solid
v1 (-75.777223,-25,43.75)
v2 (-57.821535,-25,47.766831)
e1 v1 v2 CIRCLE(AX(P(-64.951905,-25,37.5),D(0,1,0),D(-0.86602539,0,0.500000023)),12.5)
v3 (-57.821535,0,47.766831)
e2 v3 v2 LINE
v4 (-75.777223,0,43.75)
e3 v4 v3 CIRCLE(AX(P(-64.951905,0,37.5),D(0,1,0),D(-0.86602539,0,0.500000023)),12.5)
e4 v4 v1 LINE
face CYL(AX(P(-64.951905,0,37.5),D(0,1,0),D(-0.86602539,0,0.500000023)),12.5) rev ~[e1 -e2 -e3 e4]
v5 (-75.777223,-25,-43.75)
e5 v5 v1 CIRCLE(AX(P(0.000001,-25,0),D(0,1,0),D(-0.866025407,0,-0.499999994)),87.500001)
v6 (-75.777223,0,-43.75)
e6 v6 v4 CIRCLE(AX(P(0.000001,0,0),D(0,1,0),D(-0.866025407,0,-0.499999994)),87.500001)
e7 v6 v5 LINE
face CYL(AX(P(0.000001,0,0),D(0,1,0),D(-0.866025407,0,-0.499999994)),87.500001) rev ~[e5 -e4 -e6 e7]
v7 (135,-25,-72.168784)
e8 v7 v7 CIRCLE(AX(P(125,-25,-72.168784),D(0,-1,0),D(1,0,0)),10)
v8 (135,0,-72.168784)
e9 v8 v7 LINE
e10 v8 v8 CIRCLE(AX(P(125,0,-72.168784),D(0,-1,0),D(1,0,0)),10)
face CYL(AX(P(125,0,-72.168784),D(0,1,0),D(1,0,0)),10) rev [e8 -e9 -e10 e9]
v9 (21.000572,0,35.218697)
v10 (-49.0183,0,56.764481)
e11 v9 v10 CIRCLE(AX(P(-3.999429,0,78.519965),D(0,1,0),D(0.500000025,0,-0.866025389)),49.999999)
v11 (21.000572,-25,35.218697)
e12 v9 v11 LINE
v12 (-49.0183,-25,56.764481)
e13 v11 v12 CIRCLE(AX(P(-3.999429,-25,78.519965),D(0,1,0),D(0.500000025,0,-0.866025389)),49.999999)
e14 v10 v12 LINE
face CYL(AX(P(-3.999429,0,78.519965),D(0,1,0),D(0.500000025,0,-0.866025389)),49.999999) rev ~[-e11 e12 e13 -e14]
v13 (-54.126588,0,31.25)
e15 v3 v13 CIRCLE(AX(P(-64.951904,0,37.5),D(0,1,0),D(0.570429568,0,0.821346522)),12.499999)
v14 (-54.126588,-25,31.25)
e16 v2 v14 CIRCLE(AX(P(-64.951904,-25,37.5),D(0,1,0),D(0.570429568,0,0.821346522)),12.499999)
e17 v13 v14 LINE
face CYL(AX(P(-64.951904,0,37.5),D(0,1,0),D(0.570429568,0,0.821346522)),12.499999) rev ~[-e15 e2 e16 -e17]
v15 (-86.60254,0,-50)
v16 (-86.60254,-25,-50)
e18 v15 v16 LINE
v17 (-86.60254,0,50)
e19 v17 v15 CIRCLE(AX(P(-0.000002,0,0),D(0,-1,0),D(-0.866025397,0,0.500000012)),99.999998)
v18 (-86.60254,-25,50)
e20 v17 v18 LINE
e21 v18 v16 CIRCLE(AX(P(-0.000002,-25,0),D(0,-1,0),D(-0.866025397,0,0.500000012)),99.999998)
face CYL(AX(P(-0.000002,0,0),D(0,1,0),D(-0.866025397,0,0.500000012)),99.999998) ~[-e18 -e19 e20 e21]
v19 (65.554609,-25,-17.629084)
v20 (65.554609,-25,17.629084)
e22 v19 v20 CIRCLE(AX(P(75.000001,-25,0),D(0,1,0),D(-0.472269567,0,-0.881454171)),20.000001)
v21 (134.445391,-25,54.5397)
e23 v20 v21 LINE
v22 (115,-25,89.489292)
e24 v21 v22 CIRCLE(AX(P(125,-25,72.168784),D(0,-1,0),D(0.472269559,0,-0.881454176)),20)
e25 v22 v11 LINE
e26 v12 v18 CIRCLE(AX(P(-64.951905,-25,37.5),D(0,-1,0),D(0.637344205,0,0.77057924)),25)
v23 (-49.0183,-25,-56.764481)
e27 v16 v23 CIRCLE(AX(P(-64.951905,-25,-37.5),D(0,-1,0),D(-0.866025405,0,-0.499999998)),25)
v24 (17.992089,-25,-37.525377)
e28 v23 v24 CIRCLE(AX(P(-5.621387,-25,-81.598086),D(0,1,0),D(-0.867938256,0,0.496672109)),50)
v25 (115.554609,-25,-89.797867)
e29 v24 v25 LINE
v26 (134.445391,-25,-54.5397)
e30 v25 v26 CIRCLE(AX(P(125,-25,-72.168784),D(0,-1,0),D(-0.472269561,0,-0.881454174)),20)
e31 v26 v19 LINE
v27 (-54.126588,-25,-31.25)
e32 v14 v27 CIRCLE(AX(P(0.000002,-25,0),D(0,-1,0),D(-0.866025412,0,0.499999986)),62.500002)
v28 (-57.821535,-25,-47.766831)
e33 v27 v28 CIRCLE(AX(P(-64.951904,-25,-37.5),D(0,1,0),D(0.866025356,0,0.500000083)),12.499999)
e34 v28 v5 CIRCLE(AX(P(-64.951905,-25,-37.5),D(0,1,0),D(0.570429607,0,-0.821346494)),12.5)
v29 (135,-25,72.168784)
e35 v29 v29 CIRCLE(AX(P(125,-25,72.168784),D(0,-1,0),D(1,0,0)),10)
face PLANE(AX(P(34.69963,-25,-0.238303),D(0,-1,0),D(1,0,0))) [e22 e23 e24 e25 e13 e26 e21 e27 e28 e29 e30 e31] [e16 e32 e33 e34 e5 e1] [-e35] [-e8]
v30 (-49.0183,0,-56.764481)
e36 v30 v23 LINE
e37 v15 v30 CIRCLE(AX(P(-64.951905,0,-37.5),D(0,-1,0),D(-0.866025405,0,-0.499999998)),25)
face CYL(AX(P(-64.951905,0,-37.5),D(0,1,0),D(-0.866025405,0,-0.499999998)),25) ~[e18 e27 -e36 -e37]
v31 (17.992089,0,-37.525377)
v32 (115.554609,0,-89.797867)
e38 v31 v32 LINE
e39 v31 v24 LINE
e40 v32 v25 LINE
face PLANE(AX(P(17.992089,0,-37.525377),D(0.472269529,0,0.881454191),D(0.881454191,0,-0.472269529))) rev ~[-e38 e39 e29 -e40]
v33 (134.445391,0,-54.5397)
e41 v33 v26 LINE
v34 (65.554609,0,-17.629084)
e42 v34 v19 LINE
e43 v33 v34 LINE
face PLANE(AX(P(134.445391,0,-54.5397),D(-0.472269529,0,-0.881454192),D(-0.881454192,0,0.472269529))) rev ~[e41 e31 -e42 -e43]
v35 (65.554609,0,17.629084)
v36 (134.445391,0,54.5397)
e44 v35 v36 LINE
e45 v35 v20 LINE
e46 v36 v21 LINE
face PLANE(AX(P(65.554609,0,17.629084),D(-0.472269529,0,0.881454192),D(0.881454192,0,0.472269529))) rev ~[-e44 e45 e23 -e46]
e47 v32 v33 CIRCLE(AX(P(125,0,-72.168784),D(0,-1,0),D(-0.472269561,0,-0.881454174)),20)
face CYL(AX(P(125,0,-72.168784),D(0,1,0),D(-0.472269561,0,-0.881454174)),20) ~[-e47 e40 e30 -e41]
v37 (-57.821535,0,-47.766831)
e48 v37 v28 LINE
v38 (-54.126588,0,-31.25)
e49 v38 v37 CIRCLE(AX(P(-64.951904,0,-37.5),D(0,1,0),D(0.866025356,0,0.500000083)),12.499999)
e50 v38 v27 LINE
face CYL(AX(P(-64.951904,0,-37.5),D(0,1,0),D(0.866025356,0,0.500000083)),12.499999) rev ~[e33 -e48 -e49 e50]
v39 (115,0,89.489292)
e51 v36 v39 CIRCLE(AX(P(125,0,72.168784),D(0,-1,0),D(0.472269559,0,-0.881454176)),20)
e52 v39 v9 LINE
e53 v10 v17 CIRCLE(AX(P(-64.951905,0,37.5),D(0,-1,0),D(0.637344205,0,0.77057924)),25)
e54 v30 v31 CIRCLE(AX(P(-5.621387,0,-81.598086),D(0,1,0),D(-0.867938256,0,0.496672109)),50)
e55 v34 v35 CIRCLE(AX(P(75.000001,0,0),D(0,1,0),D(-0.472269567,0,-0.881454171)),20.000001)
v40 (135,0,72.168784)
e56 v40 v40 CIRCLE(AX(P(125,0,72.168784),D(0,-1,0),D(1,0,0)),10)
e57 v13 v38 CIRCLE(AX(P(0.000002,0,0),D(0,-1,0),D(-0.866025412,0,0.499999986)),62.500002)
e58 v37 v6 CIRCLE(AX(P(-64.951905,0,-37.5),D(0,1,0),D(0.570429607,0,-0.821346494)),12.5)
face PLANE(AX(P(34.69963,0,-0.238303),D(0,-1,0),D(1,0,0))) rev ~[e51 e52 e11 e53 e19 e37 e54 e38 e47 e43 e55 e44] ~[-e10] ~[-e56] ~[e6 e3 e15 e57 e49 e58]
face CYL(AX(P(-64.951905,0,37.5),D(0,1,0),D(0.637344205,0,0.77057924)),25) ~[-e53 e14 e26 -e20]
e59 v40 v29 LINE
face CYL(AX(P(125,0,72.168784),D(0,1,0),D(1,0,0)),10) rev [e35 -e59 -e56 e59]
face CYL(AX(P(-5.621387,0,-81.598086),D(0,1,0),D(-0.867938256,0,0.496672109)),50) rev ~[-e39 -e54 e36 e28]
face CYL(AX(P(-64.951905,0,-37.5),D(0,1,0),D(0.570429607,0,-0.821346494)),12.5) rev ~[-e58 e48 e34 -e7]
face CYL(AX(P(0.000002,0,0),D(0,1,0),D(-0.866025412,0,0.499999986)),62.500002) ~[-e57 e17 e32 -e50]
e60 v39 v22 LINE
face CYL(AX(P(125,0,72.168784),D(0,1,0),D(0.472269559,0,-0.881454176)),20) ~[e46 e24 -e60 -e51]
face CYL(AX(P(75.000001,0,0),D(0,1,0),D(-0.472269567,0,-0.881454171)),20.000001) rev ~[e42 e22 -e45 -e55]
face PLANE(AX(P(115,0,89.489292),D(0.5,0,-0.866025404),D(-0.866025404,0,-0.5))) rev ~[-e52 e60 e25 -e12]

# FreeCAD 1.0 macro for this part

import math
import FreeCAD as App
import Part
import Sketcher

V = App.Vector
Q = App.Units.Quantity

doc = App.newDocument("Part")
params = doc.addObject("Spreadsheet::Sheet", "Params")
for row, (alias, value) in enumerate([
    ("sketch1_diameter", "20 mm"),
    ("sketch1_radius", "20 mm"),
    ("sketch1_radius2", "49.999999 mm"),
    ("sketch1_radius3", "25 mm"),
    ("sketch1_radius4", "87.500001 mm"),
    ("pad1_length", "25 mm"),
], start=1):
    params.set(f"A{row}", alias)
    params.set(f"B{row}", "=" + value)
    params.setAlias(f"B{row}", alias)

body = doc.addObject("PartDesign::Body", "Body")

sketch1 = body.newObject("Sketcher::SketchObject", "Sketch")
sketch1.AttachmentSupport = (doc.getObject("XZ_Plane"), [""])
sketch1.MapMode = "FlatFace"
sketch1.addGeometry([
    Part.LineSegment(V(66, 18, 0), V(134, 55, 0)),
    Part.ArcOfCircle(Part.Circle(V(125, 72, 0), V(0, 0, 1), 20), math.radians(-62), math.radians(120)),
    Part.LineSegment(V(115, 89, 0), V(21, 35, 0)),
    Part.ArcOfCircle(Part.Circle(V(-4, 79, 0), V(0, 0, 1), 50), math.radians(-154), math.radians(-60)),
    Part.ArcOfCircle(Part.Circle(V(-65, 38, 0), V(0, 0, 1), 25), math.radians(50), math.radians(150)),
    Part.ArcOfCircle(Part.Circle(V(0, 0, 0), V(0, 0, 1), 100), math.radians(150), math.radians(210)),
    Part.ArcOfCircle(Part.Circle(V(-65, -38, 0), V(0, 0, 1), 25), math.radians(-150), math.radians(-50)),
    Part.ArcOfCircle(Part.Circle(V(-6, -82, 0), V(0, 0, 1), 50), math.radians(62), math.radians(150)),
    Part.LineSegment(V(18, -38, 0), V(116, -90, 0)),
    Part.ArcOfCircle(Part.Circle(V(125, -72, 0), V(0, 0, 1), 20), math.radians(-118), math.radians(62)),
    Part.LineSegment(V(134, -55, 0), V(66, -18, 0)),
    Part.ArcOfCircle(Part.Circle(V(75, 0, 0), V(0, 0, 1), 20), math.radians(118), math.radians(242)),
    Part.Circle(V(125, -72, 0), V(0, 0, 1), 10),
    Part.ArcOfCircle(Part.Circle(V(0, 0, 0), V(0, 0, 1), 88), math.radians(150), math.radians(210)),
    Part.ArcOfCircle(Part.Circle(V(-65, 37, 0), V(0, 0, 1), 13), math.radians(55), math.radians(150)),
    Part.ArcOfCircle(Part.Circle(V(-65, 38, 0), V(0, 0, 1), 12), math.radians(-30), math.radians(55)),
    Part.ArcOfCircle(Part.Circle(V(0, 0, 0), V(0, 0, 1), 63), math.radians(150), math.radians(210)),
    Part.ArcOfCircle(Part.Circle(V(-65, -38, 0), V(0, 0, 1), 12), math.radians(-55), math.radians(30)),
    Part.ArcOfCircle(Part.Circle(V(-65, -37, 0), V(0, 0, 1), 13), math.radians(-150), math.radians(-55)),
    Part.Circle(V(125, 72, 0), V(0, 0, 1), 10),
], False)
sketch1.addConstraint([
    Sketcher.Constraint("Tangent", 0, 2, 1, 1),
    Sketcher.Constraint("Tangent", 1, 2, 2, 1),
    Sketcher.Constraint("Tangent", 2, 2, 3, 2),
    Sketcher.Constraint("Coincident", 3, 1, 4, 1),
    Sketcher.Constraint("Tangent", 4, 2, 5, 1),
    Sketcher.Constraint("Tangent", 5, 2, 6, 1),
    Sketcher.Constraint("Coincident", 6, 2, 7, 2),
    Sketcher.Constraint("Tangent", 7, 1, 8, 1),
    Sketcher.Constraint("Tangent", 8, 2, 9, 1),
    Sketcher.Constraint("Tangent", 9, 2, 10, 1),
    Sketcher.Constraint("Tangent", 10, 2, 11, 2),
    Sketcher.Constraint("Tangent", 11, 1, 0, 1),
    Sketcher.Constraint("Tangent", 13, 1, 14, 2),
    Sketcher.Constraint("Tangent", 14, 1, 15, 2),
    Sketcher.Constraint("Tangent", 15, 1, 16, 1),
    Sketcher.Constraint("Tangent", 16, 2, 17, 2),
    Sketcher.Constraint("Tangent", 17, 1, 18, 2),
    Sketcher.Constraint("Tangent", 18, 1, 13, 2),
    Sketcher.Constraint("Coincident", 5, 3, -1, 1),
    Sketcher.Constraint("Coincident", 13, 3, -1, 1),
    Sketcher.Constraint("Coincident", 16, 3, -1, 1),
    Sketcher.Constraint("Coincident", 12, 3, 9, 3),
    Sketcher.Constraint("Coincident", 14, 3, 4, 3),
    Sketcher.Constraint("Coincident", 17, 3, 6, 3),
    Sketcher.Constraint("Coincident", 19, 3, 1, 3),
    Sketcher.Constraint("Equal", 4, 6),
    Sketcher.Constraint("Equal", 3, 7),
    Sketcher.Constraint("Equal", 1, 9),
    Sketcher.Constraint("Equal", 9, 11),
    Sketcher.Constraint("Equal", 14, 15),
    Sketcher.Constraint("Equal", 12, 19),
    Sketcher.Constraint("Symmetric", 1, 3, 9, 3, -1),
    Sketcher.Constraint("Symmetric", 3, 1, 6, 2, -1),
    Sketcher.Constraint("PointOnObject", 11, 3, -1),
    Sketcher.Constraint("Parallel", 8, 10),
    Sketcher.Constraint("Vertical", 14, 1, 17, 1),
    Sketcher.Constraint("Diameter", 12, 20.0),
    Sketcher.Constraint("Radius", 1, 20.0),
    Sketcher.Constraint("Radius", 3, 49.999999),
    Sketcher.Constraint("Radius", 4, 25.0),
    Sketcher.Constraint("Radius", 13, 87.500001),
    Sketcher.Constraint("Radius", 14, 12.5),
    Sketcher.Constraint("Angle", 2, Q("-150 deg")),
    Sketcher.Constraint("DistanceX", -1, 1, 1, 3, 125.0),
    Sketcher.Constraint("DistanceX", -1, 1, 11, 3, 75.000001),
    Sketcher.Constraint("DistanceY", -1, 1, 4, 2, 50.0),
    Sketcher.Constraint("DistanceY", -1, 1, 0, 2, 54.5397),
    Sketcher.Constraint("DistanceX", 3, 1, -1, 1, 49.0183),
    Sketcher.Constraint("DistanceY", -1, 1, 14, 1, 47.766831),
])
sketch1.setExpression("Constraints[36]", "Params.sketch1_diameter")
sketch1.setExpression("Constraints[37]", "Params.sketch1_radius")
sketch1.setExpression("Constraints[38]", "Params.sketch1_radius2")
sketch1.setExpression("Constraints[39]", "Params.sketch1_radius3")
sketch1.setExpression("Constraints[40]", "Params.sketch1_radius4")
pad1 = body.newObject("PartDesign::Pad", "Pad")
pad1.Profile = sketch1
pad1.setExpression("Length", "Params.pad1_length")

doc.recompute()
